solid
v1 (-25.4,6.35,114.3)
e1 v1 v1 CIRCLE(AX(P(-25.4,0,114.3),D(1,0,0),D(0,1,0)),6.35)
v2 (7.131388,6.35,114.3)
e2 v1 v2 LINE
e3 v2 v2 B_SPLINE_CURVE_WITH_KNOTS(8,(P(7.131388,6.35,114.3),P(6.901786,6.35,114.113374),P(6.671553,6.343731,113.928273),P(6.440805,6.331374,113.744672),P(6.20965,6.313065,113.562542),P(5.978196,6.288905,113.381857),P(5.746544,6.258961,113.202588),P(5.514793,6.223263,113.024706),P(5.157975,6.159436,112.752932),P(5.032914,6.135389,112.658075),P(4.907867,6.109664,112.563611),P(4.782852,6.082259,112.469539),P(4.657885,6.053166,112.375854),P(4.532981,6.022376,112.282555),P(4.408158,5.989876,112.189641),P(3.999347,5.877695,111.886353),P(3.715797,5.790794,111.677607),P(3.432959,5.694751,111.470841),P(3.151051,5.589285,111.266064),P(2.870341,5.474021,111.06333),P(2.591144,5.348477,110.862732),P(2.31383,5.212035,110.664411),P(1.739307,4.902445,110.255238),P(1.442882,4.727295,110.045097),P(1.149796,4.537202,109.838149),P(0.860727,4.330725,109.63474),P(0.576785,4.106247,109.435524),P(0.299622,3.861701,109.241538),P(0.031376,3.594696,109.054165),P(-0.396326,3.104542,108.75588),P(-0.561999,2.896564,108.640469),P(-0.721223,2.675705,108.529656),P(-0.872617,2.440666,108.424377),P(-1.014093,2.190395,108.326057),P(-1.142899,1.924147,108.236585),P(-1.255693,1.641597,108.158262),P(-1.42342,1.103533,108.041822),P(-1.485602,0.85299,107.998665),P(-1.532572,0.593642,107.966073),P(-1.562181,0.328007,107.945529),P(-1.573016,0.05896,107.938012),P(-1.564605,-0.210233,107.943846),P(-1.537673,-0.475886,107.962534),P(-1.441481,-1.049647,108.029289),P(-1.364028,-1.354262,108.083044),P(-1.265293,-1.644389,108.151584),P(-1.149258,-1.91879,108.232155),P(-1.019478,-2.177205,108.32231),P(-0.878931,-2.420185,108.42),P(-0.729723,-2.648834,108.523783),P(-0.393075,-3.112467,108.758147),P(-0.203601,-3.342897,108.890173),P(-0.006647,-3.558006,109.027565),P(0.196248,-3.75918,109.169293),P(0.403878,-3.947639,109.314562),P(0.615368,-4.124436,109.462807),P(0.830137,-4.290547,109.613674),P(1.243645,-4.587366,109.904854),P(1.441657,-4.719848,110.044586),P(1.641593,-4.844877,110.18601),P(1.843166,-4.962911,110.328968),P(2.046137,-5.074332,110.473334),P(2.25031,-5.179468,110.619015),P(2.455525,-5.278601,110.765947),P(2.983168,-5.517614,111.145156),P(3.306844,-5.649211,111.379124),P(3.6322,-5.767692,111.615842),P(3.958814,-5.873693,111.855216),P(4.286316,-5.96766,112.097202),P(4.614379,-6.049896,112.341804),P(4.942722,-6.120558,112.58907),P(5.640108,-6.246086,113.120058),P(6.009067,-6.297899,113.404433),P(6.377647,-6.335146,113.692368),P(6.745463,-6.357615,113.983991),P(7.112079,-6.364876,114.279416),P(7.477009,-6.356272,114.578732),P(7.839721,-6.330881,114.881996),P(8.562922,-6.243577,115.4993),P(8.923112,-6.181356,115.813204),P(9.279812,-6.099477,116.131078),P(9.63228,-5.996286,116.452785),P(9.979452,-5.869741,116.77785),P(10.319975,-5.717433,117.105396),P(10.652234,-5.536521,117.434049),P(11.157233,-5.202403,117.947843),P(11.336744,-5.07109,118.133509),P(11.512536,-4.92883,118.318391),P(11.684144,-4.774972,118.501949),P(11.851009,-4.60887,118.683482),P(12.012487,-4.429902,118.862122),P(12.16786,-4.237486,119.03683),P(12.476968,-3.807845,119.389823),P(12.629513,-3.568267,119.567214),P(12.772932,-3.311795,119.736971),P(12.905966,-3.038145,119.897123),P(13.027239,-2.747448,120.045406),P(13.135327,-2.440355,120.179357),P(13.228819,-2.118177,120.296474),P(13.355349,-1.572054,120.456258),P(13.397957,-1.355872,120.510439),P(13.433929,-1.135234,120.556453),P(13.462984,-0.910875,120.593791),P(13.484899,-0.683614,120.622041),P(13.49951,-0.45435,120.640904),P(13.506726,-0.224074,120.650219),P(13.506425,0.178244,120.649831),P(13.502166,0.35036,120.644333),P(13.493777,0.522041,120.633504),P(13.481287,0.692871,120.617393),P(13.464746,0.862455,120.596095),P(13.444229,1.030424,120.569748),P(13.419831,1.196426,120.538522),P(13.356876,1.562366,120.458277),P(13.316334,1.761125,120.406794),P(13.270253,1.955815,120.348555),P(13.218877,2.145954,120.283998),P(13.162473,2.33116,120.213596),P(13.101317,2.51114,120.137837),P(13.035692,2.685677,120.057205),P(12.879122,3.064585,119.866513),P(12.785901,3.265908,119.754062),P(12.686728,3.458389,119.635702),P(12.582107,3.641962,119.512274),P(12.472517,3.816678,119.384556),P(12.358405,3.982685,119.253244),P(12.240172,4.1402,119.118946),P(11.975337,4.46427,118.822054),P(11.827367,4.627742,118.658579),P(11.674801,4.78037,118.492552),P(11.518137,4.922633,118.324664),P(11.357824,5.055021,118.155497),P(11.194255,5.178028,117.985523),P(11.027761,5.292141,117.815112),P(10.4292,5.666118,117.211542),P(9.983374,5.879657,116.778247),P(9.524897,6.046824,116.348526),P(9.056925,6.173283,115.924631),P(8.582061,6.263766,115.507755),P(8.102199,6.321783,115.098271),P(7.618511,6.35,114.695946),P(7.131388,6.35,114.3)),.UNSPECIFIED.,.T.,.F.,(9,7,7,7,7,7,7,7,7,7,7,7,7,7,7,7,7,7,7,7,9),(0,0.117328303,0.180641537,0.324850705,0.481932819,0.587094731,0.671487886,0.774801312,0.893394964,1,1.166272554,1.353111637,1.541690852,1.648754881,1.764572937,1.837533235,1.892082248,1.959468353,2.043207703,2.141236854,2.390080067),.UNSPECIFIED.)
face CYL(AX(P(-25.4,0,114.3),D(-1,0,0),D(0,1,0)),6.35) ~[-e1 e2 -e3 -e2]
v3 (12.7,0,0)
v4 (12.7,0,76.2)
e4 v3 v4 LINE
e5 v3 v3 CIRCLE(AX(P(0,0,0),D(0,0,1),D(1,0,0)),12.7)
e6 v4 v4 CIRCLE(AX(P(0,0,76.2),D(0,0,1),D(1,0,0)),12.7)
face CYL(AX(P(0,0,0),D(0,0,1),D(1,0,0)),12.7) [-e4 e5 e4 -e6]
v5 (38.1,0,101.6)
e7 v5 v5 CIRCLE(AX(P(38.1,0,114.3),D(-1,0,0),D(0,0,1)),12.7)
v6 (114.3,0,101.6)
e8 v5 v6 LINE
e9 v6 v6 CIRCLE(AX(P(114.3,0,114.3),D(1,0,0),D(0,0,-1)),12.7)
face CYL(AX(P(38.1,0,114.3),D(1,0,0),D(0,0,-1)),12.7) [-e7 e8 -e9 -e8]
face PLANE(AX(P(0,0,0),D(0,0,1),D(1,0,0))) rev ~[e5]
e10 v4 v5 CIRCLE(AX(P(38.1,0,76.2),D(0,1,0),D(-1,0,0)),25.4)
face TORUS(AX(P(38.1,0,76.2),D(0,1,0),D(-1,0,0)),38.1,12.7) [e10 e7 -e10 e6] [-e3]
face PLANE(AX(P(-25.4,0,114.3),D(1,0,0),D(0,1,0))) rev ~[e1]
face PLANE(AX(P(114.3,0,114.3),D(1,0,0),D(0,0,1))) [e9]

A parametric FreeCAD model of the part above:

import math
import FreeCAD as App
import Part
import Sketcher
from FreeCAD import Vector
Q = App.Units.Quantity

doc = App.newDocument("Part")
body = doc.addObject("PartDesign::Body", "Body")

# Sketch on XY plane
sketch1 = doc.addObject("Sketcher::SketchObject", "Sketch")
body.addObject(sketch1)
sketch1.AttachmentSupport = (doc.XY_Plane, [""])
sketch1.MapMode = "FlatFace"
sketch1.addGeometry(Part.Circle(Vector(0, 0, 0), Vector(0, 0, 1), 13), False)
sketch1.addConstraint([
    Sketcher.Constraint("Coincident", 0, 3, -1, 1),
    Sketcher.Constraint("Diameter", 0, Q("1 in")),
])

# Sketch on XZ plane
sketch2 = doc.addObject("Sketcher::SketchObject", "Sketch001")
body.addObject(sketch2)
sketch2.AttachmentSupport = (doc.XZ_Plane, [""])
sketch2.MapMode = "FlatFace"
sketch2.addGeometry([
    Part.LineSegment(Vector(0, 0, 0), Vector(0, 76, 0)),
    Part.ArcOfCircle(Part.Circle(Vector(38, 76, 0), Vector(0, 0, 1), 38), math.radians(90), math.radians(180)),
    Part.LineSegment(Vector(38, 114, 0), Vector(114, 114, 0)),
], False)
sketch2.addConstraint([
    Sketcher.Constraint("Tangent", 0, 2, 1, 2),
    Sketcher.Constraint("Tangent", 1, 1, 2, 1),
    Sketcher.Constraint("Vertical", 0),
    Sketcher.Constraint("Horizontal", 2),
    Sketcher.Constraint("Coincident", 0, 1, -1, 1),
    Sketcher.Constraint("Equal", 2, 0),
    Sketcher.Constraint("Radius", 1, Q("1.5 in")),
    Sketcher.Constraint("DistanceX", 2, 1, 2, 2, Q("3 in")),
])
doc.recompute()

additivepipe = doc.addObject("PartDesign::AdditivePipe", "AdditivePipe")
body.addObject(additivepipe)
additivepipe.Profile = sketch1
additivepipe.Spine = (sketch2, ["Edge1", "Edge2", "Edge3"])

# Sketch on YZ plane
sketch3 = doc.addObject("Sketcher::SketchObject", "Sketch002")
body.addObject(sketch3)
sketch3.AttachmentSupport = (doc.YZ_Plane, [""])
sketch3.MapMode = "FlatFace"
sketch3.AttachmentOffset = App.Placement(Vector(0, 0, -1 * 25.4), App.Rotation())
sketch3.addGeometry(Part.Circle(Vector(0, 114, 0), Vector(0, 0, 1), 6), False)
sketch3.addConstraint([
    Sketcher.Constraint("PointOnObject", 0, 3, -2),
    Sketcher.Constraint("Diameter", 0, Q("0.5 in")),
    Sketcher.Constraint("DistanceY", -1, 1, 0, 3, Q("4.5 in")),
])
pad1 = doc.addObject("PartDesign::Pad", "Pad")
body.addObject(pad1)
pad1.Profile = sketch3
pad1.Length = Q("3 in")

doc.recompute()
